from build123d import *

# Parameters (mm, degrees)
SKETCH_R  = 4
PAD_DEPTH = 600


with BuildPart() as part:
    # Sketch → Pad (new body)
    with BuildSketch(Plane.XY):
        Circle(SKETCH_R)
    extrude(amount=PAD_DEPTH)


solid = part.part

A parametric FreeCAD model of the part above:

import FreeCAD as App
import Part
import Sketcher

V = App.Vector

doc = App.newDocument("Part")
body = doc.addObject("PartDesign::Body", "Body")

sketch1 = body.newObject("Sketcher::SketchObject", "Sketch")
sketch1.AttachmentSupport = (doc.getObject("XY_Plane"), [""])
sketch1.MapMode = "FlatFace"
sketch1.addGeometry(Part.Circle(V(0, 0, 0), V(0, 0, 1), 4), False)
sketch1.addConstraint([
    Sketcher.Constraint("Coincident", 0, 3, -1, 1),
    Sketcher.Constraint("Diameter", 0, 8.0),
])
pad1 = body.newObject("PartDesign::Pad", "Pad")
pad1.Profile = sketch1
pad1.Length = 600

doc.recompute()
